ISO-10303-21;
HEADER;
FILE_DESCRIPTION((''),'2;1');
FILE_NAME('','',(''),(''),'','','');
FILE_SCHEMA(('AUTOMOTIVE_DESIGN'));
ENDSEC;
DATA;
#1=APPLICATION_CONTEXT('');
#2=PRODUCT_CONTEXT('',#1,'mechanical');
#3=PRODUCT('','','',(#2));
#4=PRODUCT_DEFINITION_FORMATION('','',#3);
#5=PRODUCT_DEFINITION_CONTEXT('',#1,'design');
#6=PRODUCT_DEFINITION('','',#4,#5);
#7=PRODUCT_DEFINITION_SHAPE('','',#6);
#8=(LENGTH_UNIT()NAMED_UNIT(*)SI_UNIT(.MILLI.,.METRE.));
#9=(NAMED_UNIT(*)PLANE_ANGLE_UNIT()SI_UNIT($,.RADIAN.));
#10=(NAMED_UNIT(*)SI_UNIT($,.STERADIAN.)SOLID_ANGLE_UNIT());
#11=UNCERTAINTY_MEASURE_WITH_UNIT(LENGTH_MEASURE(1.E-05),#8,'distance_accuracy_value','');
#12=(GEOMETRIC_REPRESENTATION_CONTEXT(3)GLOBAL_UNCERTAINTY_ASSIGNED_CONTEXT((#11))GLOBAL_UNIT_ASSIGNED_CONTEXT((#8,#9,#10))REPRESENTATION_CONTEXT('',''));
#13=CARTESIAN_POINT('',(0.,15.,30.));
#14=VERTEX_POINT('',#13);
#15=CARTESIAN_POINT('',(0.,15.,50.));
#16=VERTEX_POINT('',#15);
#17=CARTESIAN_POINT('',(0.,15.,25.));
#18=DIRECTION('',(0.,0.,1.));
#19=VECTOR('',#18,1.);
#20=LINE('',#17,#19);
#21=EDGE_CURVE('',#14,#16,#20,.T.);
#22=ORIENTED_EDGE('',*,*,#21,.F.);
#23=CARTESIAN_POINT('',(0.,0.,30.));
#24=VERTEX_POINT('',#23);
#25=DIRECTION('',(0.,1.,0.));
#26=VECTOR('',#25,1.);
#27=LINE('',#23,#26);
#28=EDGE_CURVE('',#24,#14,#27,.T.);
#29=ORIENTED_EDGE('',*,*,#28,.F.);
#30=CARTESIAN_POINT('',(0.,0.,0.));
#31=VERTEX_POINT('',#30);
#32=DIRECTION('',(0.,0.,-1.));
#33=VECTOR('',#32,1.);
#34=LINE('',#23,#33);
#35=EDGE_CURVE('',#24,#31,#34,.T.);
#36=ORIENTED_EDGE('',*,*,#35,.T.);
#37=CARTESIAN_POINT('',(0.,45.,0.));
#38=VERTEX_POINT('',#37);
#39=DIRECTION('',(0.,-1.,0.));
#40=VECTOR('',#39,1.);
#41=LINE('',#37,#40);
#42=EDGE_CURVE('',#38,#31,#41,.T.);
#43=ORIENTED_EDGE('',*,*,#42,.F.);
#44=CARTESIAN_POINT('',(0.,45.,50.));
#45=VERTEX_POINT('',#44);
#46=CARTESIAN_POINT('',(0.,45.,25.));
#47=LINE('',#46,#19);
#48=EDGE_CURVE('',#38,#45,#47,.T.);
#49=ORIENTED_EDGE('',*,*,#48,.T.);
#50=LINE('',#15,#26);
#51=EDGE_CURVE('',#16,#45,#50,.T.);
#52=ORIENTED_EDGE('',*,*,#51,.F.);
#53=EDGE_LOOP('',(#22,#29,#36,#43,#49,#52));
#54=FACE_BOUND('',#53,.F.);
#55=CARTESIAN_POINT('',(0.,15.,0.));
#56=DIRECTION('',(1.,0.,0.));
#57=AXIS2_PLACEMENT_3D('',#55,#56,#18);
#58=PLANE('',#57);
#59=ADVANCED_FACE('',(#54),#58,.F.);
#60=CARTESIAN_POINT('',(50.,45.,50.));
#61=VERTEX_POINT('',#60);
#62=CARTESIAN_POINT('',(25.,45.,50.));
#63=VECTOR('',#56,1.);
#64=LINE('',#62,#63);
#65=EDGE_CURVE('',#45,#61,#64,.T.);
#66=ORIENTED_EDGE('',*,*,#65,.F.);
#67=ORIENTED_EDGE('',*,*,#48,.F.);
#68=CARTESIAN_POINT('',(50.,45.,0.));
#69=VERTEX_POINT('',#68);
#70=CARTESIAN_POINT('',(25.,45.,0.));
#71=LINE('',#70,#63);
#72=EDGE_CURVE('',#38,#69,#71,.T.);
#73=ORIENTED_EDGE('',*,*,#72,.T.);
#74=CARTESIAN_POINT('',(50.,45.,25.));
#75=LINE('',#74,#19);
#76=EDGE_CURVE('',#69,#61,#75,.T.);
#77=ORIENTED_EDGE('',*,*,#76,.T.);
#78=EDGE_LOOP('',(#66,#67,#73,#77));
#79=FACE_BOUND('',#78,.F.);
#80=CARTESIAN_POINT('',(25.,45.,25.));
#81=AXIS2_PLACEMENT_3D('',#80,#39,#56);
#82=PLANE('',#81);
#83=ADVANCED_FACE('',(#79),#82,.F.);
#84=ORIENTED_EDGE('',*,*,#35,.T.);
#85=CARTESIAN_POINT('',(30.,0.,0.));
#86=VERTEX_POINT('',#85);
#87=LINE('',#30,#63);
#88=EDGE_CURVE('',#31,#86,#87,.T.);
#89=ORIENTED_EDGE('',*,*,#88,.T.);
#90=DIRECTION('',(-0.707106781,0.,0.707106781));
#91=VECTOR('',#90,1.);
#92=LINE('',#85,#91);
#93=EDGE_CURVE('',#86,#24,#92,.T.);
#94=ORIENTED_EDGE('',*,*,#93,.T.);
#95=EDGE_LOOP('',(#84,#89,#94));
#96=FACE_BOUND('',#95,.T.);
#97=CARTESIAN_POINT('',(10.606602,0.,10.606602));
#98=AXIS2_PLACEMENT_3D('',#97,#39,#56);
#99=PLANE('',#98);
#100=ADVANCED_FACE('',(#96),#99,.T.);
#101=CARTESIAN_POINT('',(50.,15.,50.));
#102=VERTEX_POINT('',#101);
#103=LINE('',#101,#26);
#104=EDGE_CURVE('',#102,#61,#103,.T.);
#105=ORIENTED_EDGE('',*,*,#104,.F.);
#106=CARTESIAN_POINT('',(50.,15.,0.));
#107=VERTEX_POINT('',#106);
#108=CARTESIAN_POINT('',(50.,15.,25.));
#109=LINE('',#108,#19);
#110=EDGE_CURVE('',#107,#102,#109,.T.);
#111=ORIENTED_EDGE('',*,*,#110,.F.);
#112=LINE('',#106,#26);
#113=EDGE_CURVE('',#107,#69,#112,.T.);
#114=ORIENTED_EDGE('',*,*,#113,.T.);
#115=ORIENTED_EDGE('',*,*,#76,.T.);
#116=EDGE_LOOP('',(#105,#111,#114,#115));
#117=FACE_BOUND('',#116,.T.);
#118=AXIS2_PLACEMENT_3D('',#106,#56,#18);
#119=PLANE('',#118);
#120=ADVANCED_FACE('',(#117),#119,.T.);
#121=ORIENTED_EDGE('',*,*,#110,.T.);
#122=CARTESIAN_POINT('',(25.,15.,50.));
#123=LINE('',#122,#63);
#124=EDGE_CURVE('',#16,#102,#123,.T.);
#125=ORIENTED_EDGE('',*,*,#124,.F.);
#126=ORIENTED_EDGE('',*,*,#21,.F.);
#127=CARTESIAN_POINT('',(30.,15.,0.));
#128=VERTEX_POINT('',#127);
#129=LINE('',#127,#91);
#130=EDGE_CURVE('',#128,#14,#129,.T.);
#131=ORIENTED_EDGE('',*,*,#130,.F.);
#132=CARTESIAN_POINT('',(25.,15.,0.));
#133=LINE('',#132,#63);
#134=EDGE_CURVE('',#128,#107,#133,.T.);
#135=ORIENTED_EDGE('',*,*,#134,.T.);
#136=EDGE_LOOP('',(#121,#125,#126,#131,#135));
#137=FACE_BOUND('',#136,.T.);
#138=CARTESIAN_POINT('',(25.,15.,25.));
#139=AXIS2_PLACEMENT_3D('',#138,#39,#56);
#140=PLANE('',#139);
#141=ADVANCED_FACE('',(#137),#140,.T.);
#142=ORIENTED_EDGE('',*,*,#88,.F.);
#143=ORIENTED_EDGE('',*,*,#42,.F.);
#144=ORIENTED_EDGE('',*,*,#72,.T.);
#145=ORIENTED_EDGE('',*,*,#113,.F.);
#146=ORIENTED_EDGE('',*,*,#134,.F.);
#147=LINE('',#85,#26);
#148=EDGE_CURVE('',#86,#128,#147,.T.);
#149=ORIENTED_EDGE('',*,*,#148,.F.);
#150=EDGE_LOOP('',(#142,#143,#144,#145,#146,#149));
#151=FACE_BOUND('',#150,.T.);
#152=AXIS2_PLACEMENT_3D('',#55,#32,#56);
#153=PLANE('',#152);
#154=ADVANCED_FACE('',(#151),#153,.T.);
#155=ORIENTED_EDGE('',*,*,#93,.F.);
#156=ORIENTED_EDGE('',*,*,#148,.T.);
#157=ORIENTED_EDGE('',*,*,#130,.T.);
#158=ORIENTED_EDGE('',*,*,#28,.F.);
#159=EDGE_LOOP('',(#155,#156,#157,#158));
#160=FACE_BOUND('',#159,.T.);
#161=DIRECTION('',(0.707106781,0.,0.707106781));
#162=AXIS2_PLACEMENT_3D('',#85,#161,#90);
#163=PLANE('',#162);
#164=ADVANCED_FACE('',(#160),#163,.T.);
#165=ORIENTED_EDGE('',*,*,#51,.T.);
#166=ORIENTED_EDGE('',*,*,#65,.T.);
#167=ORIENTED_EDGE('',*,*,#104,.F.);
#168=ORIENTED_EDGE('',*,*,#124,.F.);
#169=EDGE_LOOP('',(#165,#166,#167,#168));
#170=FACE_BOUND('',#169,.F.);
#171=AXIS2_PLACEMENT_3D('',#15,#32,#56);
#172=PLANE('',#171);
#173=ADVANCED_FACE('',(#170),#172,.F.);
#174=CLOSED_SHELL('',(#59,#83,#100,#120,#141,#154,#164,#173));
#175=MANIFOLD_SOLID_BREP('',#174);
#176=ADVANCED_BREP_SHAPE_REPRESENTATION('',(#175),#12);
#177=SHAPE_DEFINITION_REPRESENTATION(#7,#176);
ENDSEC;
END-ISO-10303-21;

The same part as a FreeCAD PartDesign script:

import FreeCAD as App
import Part
import Sketcher


def add_polygon(sketch, points):
    """Adds a closed chain of lines whose ends are joined by coincident constraints."""
    first, n = sketch.GeometryCount, len(points)
    for a, b in zip(points, points[1:] + points[:1]):
        sketch.addGeometry(Part.LineSegment(App.Vector(*a, 0), App.Vector(*b, 0)), False)
    for i in range(n):
        sketch.addConstraint(Sketcher.Constraint("Coincident", first + i, 2, first + (i + 1) % n, 1))

doc = App.newDocument("Part")
body = doc.addObject("PartDesign::Body", "Body")

# Sketch on XZ plane
sketch1 = body.newObject("Sketcher::SketchObject", "Sketch")
sketch1.AttachmentSupport = (doc.getObject("XZ_Plane"), [""])
sketch1.MapMode = "FlatFace"
add_polygon(sketch1, [(0, 30), (0, 0), (30, 0)])  # lines 0-2
sketch1.addConstraint(Sketcher.Constraint("Vertical", 0))
sketch1.addConstraint(Sketcher.Constraint("Horizontal", 1))
sketch1.addConstraint(Sketcher.Constraint("Coincident", 0, 2, -1, 1))
sketch1.addConstraint(Sketcher.Constraint("Equal", 1, 0))
sketch1.addConstraint(Sketcher.Constraint("DistanceX", 1, 1, 1, 2, 30.0))
pad1 = body.newObject("PartDesign::Pad", "Pad")
pad1.Profile = sketch1
pad1.Length = 15
pad1.Reversed = True

# Sketch on XZ plane
sketch2 = body.newObject("Sketcher::SketchObject", "Sketch001")
sketch2.AttachmentSupport = (doc.getObject("XZ_Plane"), [""])
sketch2.MapMode = "FlatFace"
sketch2.AttachmentOffset = App.Placement(App.Vector(0, 0, -15), App.Rotation())
add_polygon(sketch2, [(0, 50), (0, 0), (50, 0), (50, 50)])  # lines 0-3
sketch2.addConstraint(Sketcher.Constraint("Vertical", 0))
sketch2.addConstraint(Sketcher.Constraint("Horizontal", 1))
sketch2.addConstraint(Sketcher.Constraint("Vertical", 2))
sketch2.addConstraint(Sketcher.Constraint("Horizontal", 3))
sketch2.addConstraint(Sketcher.Constraint("Coincident", 0, 2, -1, 1))
sketch2.addConstraint(Sketcher.Constraint("Equal", 3, 0))
sketch2.addConstraint(Sketcher.Constraint("DistanceX", 1, 1, 1, 2, 50.0))
pad2 = body.newObject("PartDesign::Pad", "Pad001")
pad2.Profile = sketch2
pad2.Length = 30
pad2.Reversed = True

# Sketch on XY plane
sketch3 = body.newObject("Sketcher::SketchObject", "Sketch002")
sketch3.AttachmentSupport = (doc.getObject("XY_Plane"), [""])
sketch3.MapMode = "FlatFace"
sketch3.AttachmentOffset = App.Placement(App.Vector(0, 0, 50), App.Rotation())
sketch3.addGeometry(Part.Circle(App.Vector(15, 30, 0), App.Vector(0, 0, 1), 5), False)
sketch3.addConstraint(Sketcher.Constraint("Diameter", 0, 10.0))
sketch3.addConstraint(Sketcher.Constraint("DistanceX", -1, 1, 0, 3, 15.0))
sketch3.addConstraint(Sketcher.Constraint("DistanceY", -1, 1, 0, 3, 30.0))
pad3 = body.newObject("PartDesign::Pad", "Pad002")
pad3.Profile = sketch3
pad3.Type = "UpToLast"
pad3.Reversed = True

doc.recompute()
